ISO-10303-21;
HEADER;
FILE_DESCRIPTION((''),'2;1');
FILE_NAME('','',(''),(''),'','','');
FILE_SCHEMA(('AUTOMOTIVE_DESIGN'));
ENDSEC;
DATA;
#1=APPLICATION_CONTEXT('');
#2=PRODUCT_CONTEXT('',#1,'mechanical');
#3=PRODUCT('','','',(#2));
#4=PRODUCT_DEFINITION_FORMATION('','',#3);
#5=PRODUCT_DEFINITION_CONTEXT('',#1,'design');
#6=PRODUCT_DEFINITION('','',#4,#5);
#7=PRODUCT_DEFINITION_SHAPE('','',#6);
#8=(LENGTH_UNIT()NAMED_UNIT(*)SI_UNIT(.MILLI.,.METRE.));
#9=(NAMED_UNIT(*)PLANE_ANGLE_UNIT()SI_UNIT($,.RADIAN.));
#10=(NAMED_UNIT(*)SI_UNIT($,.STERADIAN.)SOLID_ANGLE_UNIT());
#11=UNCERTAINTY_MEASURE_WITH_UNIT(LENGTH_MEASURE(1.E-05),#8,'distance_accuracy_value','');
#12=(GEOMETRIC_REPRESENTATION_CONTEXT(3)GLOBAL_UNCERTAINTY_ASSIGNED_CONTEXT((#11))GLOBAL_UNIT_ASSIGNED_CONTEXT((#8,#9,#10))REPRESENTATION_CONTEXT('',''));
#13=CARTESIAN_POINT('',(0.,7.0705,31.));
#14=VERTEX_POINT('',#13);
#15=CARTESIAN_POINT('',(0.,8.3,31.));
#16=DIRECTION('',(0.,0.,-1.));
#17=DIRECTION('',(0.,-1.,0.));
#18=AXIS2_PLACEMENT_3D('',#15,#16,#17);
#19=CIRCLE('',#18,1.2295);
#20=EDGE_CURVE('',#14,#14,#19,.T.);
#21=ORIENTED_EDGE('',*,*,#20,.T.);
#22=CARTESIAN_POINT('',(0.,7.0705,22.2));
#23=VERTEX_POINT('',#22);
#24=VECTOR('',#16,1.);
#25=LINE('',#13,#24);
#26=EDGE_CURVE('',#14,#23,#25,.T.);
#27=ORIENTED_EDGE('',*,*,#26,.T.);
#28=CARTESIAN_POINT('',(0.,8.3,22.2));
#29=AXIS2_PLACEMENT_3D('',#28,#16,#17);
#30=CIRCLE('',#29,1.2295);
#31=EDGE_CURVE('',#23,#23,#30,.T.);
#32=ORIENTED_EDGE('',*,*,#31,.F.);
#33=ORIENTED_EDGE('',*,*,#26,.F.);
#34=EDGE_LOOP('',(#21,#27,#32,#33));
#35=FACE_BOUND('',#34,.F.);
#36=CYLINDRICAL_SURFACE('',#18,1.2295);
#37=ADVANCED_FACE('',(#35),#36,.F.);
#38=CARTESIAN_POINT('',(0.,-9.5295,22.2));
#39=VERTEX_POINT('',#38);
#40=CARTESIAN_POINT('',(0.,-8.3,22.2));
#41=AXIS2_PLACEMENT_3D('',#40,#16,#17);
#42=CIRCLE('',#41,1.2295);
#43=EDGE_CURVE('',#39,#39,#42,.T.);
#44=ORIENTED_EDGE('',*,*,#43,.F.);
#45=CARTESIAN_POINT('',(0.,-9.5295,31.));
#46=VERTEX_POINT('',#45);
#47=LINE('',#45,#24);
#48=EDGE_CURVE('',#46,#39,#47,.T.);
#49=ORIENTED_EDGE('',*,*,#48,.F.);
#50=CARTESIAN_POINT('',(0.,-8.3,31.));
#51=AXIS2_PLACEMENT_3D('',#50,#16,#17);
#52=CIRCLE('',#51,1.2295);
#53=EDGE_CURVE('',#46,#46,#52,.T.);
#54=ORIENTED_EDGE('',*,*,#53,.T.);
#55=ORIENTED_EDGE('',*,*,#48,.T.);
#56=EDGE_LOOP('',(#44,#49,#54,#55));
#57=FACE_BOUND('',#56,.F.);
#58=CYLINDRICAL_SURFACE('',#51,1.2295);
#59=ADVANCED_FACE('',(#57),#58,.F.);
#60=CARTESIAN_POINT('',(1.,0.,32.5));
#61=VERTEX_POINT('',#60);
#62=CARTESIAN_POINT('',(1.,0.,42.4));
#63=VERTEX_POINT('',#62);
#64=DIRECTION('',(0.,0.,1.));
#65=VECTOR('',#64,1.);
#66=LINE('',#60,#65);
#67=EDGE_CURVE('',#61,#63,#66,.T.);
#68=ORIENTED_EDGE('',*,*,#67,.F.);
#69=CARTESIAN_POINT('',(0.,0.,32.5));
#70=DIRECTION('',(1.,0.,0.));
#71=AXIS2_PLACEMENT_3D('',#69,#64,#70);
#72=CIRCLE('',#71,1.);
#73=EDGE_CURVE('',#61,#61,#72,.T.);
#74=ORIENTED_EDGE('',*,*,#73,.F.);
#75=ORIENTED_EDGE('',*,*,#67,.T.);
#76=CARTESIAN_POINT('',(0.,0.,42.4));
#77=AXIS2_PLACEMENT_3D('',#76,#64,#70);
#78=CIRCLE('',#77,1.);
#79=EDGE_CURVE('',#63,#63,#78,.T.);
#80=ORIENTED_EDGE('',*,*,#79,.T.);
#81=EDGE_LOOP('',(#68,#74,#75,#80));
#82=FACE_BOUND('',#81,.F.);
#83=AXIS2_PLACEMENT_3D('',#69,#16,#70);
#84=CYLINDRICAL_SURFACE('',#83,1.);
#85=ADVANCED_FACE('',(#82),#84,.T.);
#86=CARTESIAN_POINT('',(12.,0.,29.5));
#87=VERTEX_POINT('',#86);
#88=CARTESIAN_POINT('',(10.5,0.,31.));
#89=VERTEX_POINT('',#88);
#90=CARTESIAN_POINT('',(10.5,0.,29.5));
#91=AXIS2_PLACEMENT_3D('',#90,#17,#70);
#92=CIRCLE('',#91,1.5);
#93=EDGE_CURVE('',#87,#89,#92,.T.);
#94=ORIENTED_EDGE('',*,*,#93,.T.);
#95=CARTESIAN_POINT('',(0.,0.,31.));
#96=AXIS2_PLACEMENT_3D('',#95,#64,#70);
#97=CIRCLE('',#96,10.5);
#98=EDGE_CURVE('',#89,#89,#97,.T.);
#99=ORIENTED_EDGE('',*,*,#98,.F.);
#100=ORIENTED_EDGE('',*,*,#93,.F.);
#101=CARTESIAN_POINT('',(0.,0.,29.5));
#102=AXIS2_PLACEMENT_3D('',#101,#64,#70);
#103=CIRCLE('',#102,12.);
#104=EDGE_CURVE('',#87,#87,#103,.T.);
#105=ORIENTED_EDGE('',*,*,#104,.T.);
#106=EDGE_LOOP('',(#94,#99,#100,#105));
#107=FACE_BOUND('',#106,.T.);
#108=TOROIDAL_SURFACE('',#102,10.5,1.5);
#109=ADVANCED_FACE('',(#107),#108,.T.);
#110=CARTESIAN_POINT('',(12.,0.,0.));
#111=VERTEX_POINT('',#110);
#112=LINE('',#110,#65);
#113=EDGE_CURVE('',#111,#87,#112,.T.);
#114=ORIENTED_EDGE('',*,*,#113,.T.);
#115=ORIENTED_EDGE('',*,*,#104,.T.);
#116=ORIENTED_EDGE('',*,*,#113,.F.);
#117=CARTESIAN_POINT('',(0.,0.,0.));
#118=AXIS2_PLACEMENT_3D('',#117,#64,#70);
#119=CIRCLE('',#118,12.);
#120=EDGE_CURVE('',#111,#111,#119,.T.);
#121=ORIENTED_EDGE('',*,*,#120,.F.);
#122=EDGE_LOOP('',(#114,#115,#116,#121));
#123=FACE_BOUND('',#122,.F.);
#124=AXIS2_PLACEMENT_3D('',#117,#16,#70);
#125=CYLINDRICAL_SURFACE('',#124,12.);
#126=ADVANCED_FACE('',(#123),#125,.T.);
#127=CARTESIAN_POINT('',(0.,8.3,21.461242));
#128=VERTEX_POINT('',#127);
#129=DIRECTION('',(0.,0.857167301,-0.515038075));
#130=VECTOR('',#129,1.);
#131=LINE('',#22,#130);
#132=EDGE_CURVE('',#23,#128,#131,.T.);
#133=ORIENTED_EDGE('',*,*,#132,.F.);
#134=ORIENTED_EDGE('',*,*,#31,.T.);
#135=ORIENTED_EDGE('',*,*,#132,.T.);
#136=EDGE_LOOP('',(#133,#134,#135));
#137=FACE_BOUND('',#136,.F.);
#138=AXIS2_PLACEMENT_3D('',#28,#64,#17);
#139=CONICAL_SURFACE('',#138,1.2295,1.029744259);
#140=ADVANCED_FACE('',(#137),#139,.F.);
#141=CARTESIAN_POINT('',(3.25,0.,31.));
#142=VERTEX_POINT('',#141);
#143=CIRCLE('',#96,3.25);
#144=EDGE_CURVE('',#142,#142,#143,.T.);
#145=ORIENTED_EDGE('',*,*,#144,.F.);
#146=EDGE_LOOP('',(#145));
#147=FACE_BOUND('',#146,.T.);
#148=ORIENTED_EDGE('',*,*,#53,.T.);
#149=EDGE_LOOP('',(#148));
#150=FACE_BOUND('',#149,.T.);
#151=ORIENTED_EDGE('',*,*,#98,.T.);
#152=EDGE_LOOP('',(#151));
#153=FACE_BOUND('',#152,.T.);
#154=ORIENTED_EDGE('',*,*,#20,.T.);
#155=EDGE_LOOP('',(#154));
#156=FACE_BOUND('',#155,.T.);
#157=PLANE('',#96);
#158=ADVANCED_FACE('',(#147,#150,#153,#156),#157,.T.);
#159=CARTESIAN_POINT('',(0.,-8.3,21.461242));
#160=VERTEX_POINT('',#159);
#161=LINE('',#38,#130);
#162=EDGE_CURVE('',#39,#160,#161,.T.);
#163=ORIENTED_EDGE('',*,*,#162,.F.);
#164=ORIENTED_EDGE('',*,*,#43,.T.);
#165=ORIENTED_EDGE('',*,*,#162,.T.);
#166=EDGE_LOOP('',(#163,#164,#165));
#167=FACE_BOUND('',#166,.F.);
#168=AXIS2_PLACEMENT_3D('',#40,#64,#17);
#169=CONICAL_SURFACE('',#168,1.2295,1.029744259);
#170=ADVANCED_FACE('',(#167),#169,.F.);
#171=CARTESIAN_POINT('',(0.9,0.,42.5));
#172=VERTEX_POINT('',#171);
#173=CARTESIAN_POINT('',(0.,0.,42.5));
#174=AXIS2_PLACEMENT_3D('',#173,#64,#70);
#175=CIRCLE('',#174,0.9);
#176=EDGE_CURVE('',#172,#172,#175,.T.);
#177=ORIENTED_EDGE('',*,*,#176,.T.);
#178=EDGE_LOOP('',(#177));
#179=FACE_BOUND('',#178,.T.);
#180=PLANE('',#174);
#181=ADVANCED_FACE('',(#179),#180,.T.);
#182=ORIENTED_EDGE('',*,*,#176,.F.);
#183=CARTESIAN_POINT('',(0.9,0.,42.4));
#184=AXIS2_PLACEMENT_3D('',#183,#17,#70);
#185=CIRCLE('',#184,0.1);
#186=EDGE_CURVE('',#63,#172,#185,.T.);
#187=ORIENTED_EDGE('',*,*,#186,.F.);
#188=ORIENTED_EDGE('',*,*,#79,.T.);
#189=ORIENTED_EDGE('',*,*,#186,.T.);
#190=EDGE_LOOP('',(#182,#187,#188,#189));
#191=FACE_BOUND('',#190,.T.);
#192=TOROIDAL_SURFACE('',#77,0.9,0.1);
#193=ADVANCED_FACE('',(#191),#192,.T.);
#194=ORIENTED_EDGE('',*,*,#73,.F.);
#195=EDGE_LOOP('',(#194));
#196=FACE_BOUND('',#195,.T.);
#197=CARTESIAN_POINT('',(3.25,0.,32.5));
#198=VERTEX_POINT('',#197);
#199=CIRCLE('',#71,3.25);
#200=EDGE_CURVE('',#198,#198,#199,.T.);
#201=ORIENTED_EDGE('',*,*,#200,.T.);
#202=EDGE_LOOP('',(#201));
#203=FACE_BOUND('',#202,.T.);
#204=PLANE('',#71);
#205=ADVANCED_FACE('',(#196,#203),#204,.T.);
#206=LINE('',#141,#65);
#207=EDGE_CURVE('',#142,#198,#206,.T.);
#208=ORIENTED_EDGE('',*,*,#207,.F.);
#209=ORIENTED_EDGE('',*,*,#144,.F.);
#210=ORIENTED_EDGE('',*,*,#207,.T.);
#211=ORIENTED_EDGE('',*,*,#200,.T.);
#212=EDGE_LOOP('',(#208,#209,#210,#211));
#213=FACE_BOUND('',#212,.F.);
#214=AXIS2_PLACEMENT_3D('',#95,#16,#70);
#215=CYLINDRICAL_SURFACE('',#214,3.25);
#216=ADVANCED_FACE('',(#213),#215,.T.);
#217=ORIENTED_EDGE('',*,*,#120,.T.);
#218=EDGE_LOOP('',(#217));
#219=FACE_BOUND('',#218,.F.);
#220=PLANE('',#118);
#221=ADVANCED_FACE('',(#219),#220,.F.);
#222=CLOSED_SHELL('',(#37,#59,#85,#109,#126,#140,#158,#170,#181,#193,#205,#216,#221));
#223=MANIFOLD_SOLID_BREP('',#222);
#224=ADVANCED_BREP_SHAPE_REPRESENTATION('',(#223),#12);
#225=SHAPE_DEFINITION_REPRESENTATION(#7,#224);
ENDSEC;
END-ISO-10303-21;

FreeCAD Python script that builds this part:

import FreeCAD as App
import Part
import Sketcher


def edges_at(feature, points):
    """Names of the edges that pass closest to the given points."""
    edges = feature.Shape.Edges
    near = lambda p: min(range(len(edges)), key=lambda i: edges[i].distToShape(Part.Vertex(*p))[0])
    return sorted({f"Edge{near(p) + 1}" for p in points})

doc = App.newDocument("Part")
body = doc.addObject("PartDesign::Body", "Body")

sketch1 = body.newObject("Sketcher::SketchObject", "Sketch")
sketch1.AttachmentSupport = (doc.getObject("XY_Plane"), [""])
sketch1.MapMode = "FlatFace"
sketch1.addGeometry(Part.Circle(App.Vector(0, 0, 0), App.Vector(0, 0, 1), 12), False)
sketch1.addConstraint([
    Sketcher.Constraint("Coincident", 0, 3, -1, 1),
    Sketcher.Constraint("Diameter", 0, 24.0),
])
pad1 = body.newObject("PartDesign::Pad", "Pad")
pad1.Profile = sketch1
pad1.Length = 31

sketch2 = body.newObject("Sketcher::SketchObject", "Sketch001")
sketch2.AttachmentSupport = (doc.getObject("XY_Plane"), [""])
sketch2.MapMode = "FlatFace"
sketch2.AttachmentOffset = App.Placement(App.Vector(0, 0, 31), App.Rotation())
sketch2.addGeometry(Part.Circle(App.Vector(0, 0, 0), App.Vector(0, 0, 1), 3.2), False)
sketch2.addConstraint([
    Sketcher.Constraint("Coincident", 0, 3, -1, 1),
    Sketcher.Constraint("Diameter", 0, 6.5),
])
pad2 = body.newObject("PartDesign::Pad", "Pad001")
pad2.Profile = sketch2
pad2.Length = 1.5

sketch3 = body.newObject("Sketcher::SketchObject", "Sketch002")
sketch3.AttachmentSupport = (doc.getObject("XY_Plane"), [""])
sketch3.MapMode = "FlatFace"
sketch3.AttachmentOffset = App.Placement(App.Vector(0, 0, 31), App.Rotation())
sketch3.addGeometry([
    Part.Circle(App.Vector(0, 8.3, 0), App.Vector(0, 0, 1), 1.2),
    Part.Circle(App.Vector(0, -8.3, 0), App.Vector(0, 0, 1), 1.2),
], False)
sketch3.addConstraint([
    Sketcher.Constraint("Equal", 0, 1),
    Sketcher.Constraint("Symmetric", 0, 3, 1, 3, -1, 1),
    Sketcher.Constraint("PointOnObject", 0, 3, -2),
    Sketcher.Constraint("Diameter", 0, 2.459),
    Sketcher.Constraint("DistanceY", -1, 1, 0, 3, 8.3),
])
doc.recompute()
hole = body.newObject("PartDesign::Hole", "Hole")
hole.Profile = sketch3
hole.ThreadType = "None"
hole.Diameter = 2.459
hole.DepthType = "Dimension"
hole.Depth = 8.8
hole.DrillPoint = "Angled"
hole.DrillPointAngle = 118
doc.recompute()

fillet = body.newObject("PartDesign::Fillet", "Fillet")
fillet.Base = (hole, edges_at(hole, [(-12, 0, 31)]))
fillet.Radius = 1.5

sketch4 = body.newObject("Sketcher::SketchObject", "Sketch003")
sketch4.AttachmentSupport = (doc.getObject("XY_Plane"), [""])
sketch4.MapMode = "FlatFace"
sketch4.AttachmentOffset = App.Placement(App.Vector(0, 0, 32.5), App.Rotation())
sketch4.addGeometry(Part.Circle(App.Vector(0, 0, 0), App.Vector(0, 0, 1), 1), False)
sketch4.addConstraint([
    Sketcher.Constraint("Coincident", 0, 3, -1, 1),
    Sketcher.Constraint("Diameter", 0, 2.0),
])
pad3 = body.newObject("PartDesign::Pad", "Pad002")
pad3.Profile = sketch4
pad3.Length = 10
doc.recompute()

fillet2 = body.newObject("PartDesign::Fillet", "Fillet001")
fillet2.Base = (pad3, edges_at(pad3, [(-1, 0, 42.5)]))
fillet2.Radius = 0.1

doc.recompute()
